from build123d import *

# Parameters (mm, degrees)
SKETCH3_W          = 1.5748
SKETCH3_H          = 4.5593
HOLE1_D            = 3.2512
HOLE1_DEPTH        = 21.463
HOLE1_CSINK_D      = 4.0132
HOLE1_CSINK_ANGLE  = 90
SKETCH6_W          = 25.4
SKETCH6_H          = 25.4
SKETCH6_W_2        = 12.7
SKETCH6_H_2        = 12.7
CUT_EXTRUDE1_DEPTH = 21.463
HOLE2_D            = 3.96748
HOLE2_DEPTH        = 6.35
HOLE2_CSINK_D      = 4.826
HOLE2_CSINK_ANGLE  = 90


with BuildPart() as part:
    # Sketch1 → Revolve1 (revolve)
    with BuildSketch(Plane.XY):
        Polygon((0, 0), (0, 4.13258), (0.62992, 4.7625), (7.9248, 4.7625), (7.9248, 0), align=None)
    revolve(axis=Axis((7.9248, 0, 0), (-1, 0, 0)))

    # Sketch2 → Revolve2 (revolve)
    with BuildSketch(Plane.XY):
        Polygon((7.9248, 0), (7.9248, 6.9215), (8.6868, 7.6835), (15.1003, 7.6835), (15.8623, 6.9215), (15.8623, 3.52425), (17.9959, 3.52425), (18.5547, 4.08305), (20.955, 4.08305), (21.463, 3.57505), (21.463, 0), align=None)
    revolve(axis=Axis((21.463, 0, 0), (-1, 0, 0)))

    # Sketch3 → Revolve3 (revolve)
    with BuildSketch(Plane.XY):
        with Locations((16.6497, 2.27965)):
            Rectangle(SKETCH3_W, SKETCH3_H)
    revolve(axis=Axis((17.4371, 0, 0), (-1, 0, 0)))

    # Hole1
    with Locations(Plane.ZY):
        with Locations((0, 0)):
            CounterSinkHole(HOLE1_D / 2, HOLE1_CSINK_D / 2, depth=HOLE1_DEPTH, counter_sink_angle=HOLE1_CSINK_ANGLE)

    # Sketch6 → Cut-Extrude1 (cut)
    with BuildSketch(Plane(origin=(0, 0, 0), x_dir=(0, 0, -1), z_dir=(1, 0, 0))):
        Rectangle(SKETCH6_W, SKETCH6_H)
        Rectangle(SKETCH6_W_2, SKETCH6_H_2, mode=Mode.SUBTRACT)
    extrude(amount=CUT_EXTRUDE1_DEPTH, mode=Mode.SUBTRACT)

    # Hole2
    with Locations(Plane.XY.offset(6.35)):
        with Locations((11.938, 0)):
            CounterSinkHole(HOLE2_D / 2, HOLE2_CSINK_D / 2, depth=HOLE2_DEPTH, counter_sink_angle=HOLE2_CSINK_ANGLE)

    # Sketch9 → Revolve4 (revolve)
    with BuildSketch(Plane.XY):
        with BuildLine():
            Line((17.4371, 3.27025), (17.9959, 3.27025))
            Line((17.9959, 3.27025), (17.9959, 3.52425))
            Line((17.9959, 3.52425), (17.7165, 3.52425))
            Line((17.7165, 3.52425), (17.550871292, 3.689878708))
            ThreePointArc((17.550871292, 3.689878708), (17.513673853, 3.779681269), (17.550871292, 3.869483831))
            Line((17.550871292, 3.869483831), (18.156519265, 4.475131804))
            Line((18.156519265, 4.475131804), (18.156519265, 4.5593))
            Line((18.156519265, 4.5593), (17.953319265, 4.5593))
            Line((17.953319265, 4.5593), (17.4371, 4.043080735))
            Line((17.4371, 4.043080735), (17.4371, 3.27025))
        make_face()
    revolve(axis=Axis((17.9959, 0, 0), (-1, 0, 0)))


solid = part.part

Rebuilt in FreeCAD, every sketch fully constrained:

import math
import FreeCAD as App
import Part
import Sketcher
from FreeCAD import Vector
Q = App.Units.Quantity


def add_polygon(sketch, points):
    """Adds a closed chain of lines whose ends are joined by coincident constraints."""
    first, n = sketch.GeometryCount, len(points)
    for a, b in zip(points, points[1:] + points[:1]):
        sketch.addGeometry(Part.LineSegment(App.Vector(*a, 0), App.Vector(*b, 0)), False)
    for i in range(n):
        sketch.addConstraint(Sketcher.Constraint("Coincident", first + i, 2, first + (i + 1) % n, 1))

doc = App.newDocument("Part")
body = doc.addObject("PartDesign::Body", "Body")

# Sketch on XY plane
sketch1 = doc.addObject("Sketcher::SketchObject", "Sketch")
body.addObject(sketch1)
sketch1.AttachmentSupport = (doc.XY_Plane, [""])
sketch1.MapMode = "FlatFace"
add_polygon(sketch1, [(0, 4.1), (0, 0), (7.9, 0), (7.9, 4.8), (0.6, 4.8)])  # lines 0-4
sketch1.addConstraint([
    Sketcher.Constraint("Vertical", 0),
    Sketcher.Constraint("Horizontal", 1),
    Sketcher.Constraint("Vertical", 2),
    Sketcher.Constraint("Horizontal", 3),
    Sketcher.Constraint("Coincident", 0, 2, -1, 1),
    Sketcher.Constraint("Angle", 4, Q("-135 deg")),
    Sketcher.Constraint("DistanceX", 1, 1, 1, 2, Q("0.312 in")),
    Sketcher.Constraint("DistanceY", 2, 1, 2, 2, Q("0.1875 in")),
    Sketcher.Constraint("DistanceX", 3, 2, 3, 1, Q("0.2872 in")),
])
revolution = doc.addObject("PartDesign::Revolution", "Revolution")
body.addObject(revolution)
revolution.Profile = sketch1
revolution.ReferenceAxis = (sketch1, ["H_Axis"])
revolution.Angle = 360

# Sketch on XY plane
sketch2 = doc.addObject("Sketcher::SketchObject", "Sketch001")
body.addObject(sketch2)
sketch2.AttachmentSupport = (doc.XY_Plane, [""])
sketch2.MapMode = "FlatFace"
add_polygon(sketch2, [(7.9, 6.9), (7.9, 0), (21.5, 0), (21.5, 3.6), (21, 4.1), (18.6, 4.1), (18, 3.5), (15.9, 3.5), (15.9, 6.9), (15.1, 7.7), (8.7, 7.7)])  # lines 0-10
sketch2.addConstraint([
    Sketcher.Constraint("Vertical", 0),
    Sketcher.Constraint("Horizontal", 1),
    Sketcher.Constraint("Vertical", 2),
    Sketcher.Constraint("Horizontal", 4),
    Sketcher.Constraint("Horizontal", 6),
    Sketcher.Constraint("Vertical", 7),
    Sketcher.Constraint("Horizontal", 9),
    Sketcher.Constraint("PointOnObject", 0, 2, -1),
    Sketcher.Constraint("Perpendicular", 3, 5),
    Sketcher.Constraint("Perpendicular", 5, 8),
    Sketcher.Constraint("Perpendicular", 8, 10),
    Sketcher.Constraint("Horizontal", 7, 2, 10, 2),
    Sketcher.Constraint("Equal", 8, 10),
    Sketcher.Constraint("DistanceX", 1, 1, 1, 2, Q("0.533 in")),
    Sketcher.Constraint("DistanceX", 6, 2, 6, 1, Q("0.084 in")),
    Sketcher.Constraint("DistanceX", 3, 2, 2, 2, Q("0.02 in")),
    Sketcher.Constraint("DistanceX", 8, 2, 7, 2, Q("0.03 in")),
    Sketcher.Constraint("DistanceX", 4, 2, 4, 1, Q("0.0945 in")),
    Sketcher.Constraint("DistanceX", 9, 2, 9, 1, Q("0.2525 in")),
    Sketcher.Constraint("DistanceY", 0, 2, 0, 1, Q("0.2725 in")),
    Sketcher.Constraint("DistanceX", -1, 1, 0, 2, Q("0.312 in")),
    Sketcher.Constraint("DistanceY", 2, 1, 2, 2, Q("3.57505 mm")),
])
revolution2 = doc.addObject("PartDesign::Revolution", "Revolution001")
body.addObject(revolution2)
revolution2.Profile = sketch2
revolution2.ReferenceAxis = (sketch2, ["H_Axis"])
revolution2.Angle = 360

# Sketch on XY plane
sketch3 = doc.addObject("Sketcher::SketchObject", "Sketch002")
body.addObject(sketch3)
sketch3.AttachmentSupport = (doc.XY_Plane, [""])
sketch3.MapMode = "FlatFace"
add_polygon(sketch3, [(15.9, 4.6), (15.9, 0), (17.4, 0), (17.4, 4.6)])  # lines 0-3
sketch3.addConstraint([
    Sketcher.Constraint("Vertical", 0),
    Sketcher.Constraint("Horizontal", 1),
    Sketcher.Constraint("Vertical", 2),
    Sketcher.Constraint("Horizontal", 3),
    Sketcher.Constraint("PointOnObject", 0, 2, -1),
    Sketcher.Constraint("DistanceX", 1, 1, 1, 2, Q("0.062 in")),
    Sketcher.Constraint("DistanceY", 0, 2, 0, 1, Q("0.1795 in")),
    Sketcher.Constraint("DistanceX", -1, 1, 0, 2, Q("0.6245 in")),
])
revolution3 = doc.addObject("PartDesign::Revolution", "Revolution002")
body.addObject(revolution3)
revolution3.Profile = sketch3
revolution3.ReferenceAxis = (sketch3, ["H_Axis"])
revolution3.Angle = 360

# Sketch on YZ plane
sketch4 = doc.addObject("Sketcher::SketchObject", "Sketch003")
body.addObject(sketch4)
sketch4.AttachmentSupport = (doc.YZ_Plane, [""])
sketch4.MapMode = "FlatFace"
sketch4.addGeometry(Part.Circle(Vector(0, 0, 0), Vector(0, 0, 1), 1.6), False)
sketch4.addConstraint([
    Sketcher.Constraint("Coincident", 0, 3, -1, 1),
    Sketcher.Constraint("Diameter", 0, Q("0.128 in")),
])
doc.recompute()
hole = doc.addObject("PartDesign::Hole", "Hole")
body.addObject(hole)
hole.Profile = sketch4
hole.ThreadType = "None"
hole.Diameter = Q("0.128 in")
hole.DepthType = "Dimension"
hole.Depth = Q("0.845 in")
hole.DrillPoint = "Flat"
hole.HoleCutType = "Countersink"
hole.HoleCutDiameter = Q("0.158 in")
hole.HoleCutCountersinkAngle = 90
hole.Reversed = True

# Sketch on YZ plane
sketch5 = doc.addObject("Sketcher::SketchObject", "Sketch004")
body.addObject(sketch5)
sketch5.AttachmentSupport = (doc.YZ_Plane, [""])
sketch5.MapMode = "FlatFace"
add_polygon(sketch5, [(13, 13), (-13, 13), (-13, -13), (13, -13)])  # lines 0-3
add_polygon(sketch5, [(-6, -6), (-6, 6), (6, 6), (6, -6)])  # lines 4-7
sketch5.addConstraint([
    Sketcher.Constraint("Horizontal", 0),
    Sketcher.Constraint("Vertical", 1),
    Sketcher.Constraint("Horizontal", 2),
    Sketcher.Constraint("Vertical", 3),
    Sketcher.Constraint("Vertical", 4),
    Sketcher.Constraint("Horizontal", 5),
    Sketcher.Constraint("Vertical", 6),
    Sketcher.Constraint("Horizontal", 7),
    Sketcher.Constraint("Symmetric", 0, 2, 2, 2, -1, 1),
    Sketcher.Constraint("Symmetric", 4, 2, 6, 2, -1, 1),
    Sketcher.Constraint("Equal", 2, 1),
    Sketcher.Constraint("Equal", 7, 4),
    Sketcher.Constraint("DistanceX", 0, 2, 0, 1, Q("1 in")),
    Sketcher.Constraint("DistanceX", 5, 1, 5, 2, Q("0.5 in")),
])
pocket1 = doc.addObject("PartDesign::Pocket", "Pocket")
body.addObject(pocket1)
pocket1.Profile = sketch5
pocket1.Length = Q("0.845 in")
pocket1.Reversed = True

# Sketch on XY plane
sketch6 = doc.addObject("Sketcher::SketchObject", "Sketch005")
body.addObject(sketch6)
sketch6.AttachmentSupport = (doc.XY_Plane, [""])
sketch6.MapMode = "FlatFace"
sketch6.AttachmentOffset = App.Placement(Vector(0, 0, 0.25 * 25.4), App.Rotation())
sketch6.addGeometry(Part.Circle(Vector(11.9, 0, 0), Vector(0, 0, 1), 2), False)
sketch6.addConstraint([
    Sketcher.Constraint("PointOnObject", 0, 3, -1),
    Sketcher.Constraint("Diameter", 0, Q("0.1562 in")),
    Sketcher.Constraint("DistanceX", -1, 1, 0, 3, Q("0.47 in")),
])
doc.recompute()
hole2 = doc.addObject("PartDesign::Hole", "Hole001")
body.addObject(hole2)
hole2.Profile = sketch6
hole2.ThreadType = "None"
hole2.Diameter = Q("0.1562 in")
hole2.DepthType = "Dimension"
hole2.Depth = Q("0.25 in")
hole2.DrillPoint = "Flat"
hole2.HoleCutType = "Countersink"
hole2.HoleCutDiameter = Q("0.19 in")
hole2.HoleCutCountersinkAngle = 90

# Sketch on XY plane
sketch7 = doc.addObject("Sketcher::SketchObject", "Sketch006")
body.addObject(sketch7)
sketch7.AttachmentSupport = (doc.XY_Plane, [""])
sketch7.MapMode = "FlatFace"
sketch7.addGeometry([
    Part.LineSegment(Vector(17.44, 3.27, 0), Vector(18, 3.27, 0)),  # 0
    Part.LineSegment(Vector(18, 3.27, 0), Vector(18, 3.52, 0)),  # 1
    Part.LineSegment(Vector(18, 3.52, 0), Vector(17.72, 3.52, 0)),  # 2
    Part.LineSegment(Vector(17.72, 3.52, 0), Vector(17.55, 3.69, 0)),  # 3
    Part.ArcOfCircle(Part.Circle(Vector(17.64, 3.78, 0), Vector(0, 0, 1), 0.13), math.radians(135), math.radians(225)),  # 4
    Part.LineSegment(Vector(17.55, 3.87, 0), Vector(18.16, 4.48, 0)),  # 5
    Part.LineSegment(Vector(18.16, 4.48, 0), Vector(18.16, 4.56, 0)),  # 6
    Part.LineSegment(Vector(18.16, 4.56, 0), Vector(17.95, 4.56, 0)),  # 7
    Part.LineSegment(Vector(17.95, 4.56, 0), Vector(17.44, 4.04, 0)),  # 8
    Part.LineSegment(Vector(17.44, 4.04, 0), Vector(17.44, 3.27, 0)),  # 9
], False)
sketch7.addConstraint([
    Sketcher.Constraint("Coincident", 0, 2, 1, 1),
    Sketcher.Constraint("Coincident", 1, 2, 2, 1),
    Sketcher.Constraint("Coincident", 2, 2, 3, 1),
    Sketcher.Constraint("Tangent", 3, 2, 4, 2),
    Sketcher.Constraint("Tangent", 4, 1, 5, 1),
    Sketcher.Constraint("Coincident", 5, 2, 6, 1),
    Sketcher.Constraint("Coincident", 6, 2, 7, 1),
    Sketcher.Constraint("Coincident", 7, 2, 8, 1),
    Sketcher.Constraint("Coincident", 8, 2, 9, 1),
    Sketcher.Constraint("Coincident", 9, 2, 0, 1),
    Sketcher.Constraint("Horizontal", 0),
    Sketcher.Constraint("Vertical", 1),
    Sketcher.Constraint("Horizontal", 2),
    Sketcher.Constraint("Vertical", 6),
    Sketcher.Constraint("Horizontal", 7),
    Sketcher.Constraint("Vertical", 9),
    Sketcher.Constraint("Perpendicular", 3, 5),
    Sketcher.Constraint("Parallel", 5, 8),
    Sketcher.Constraint("Vertical", 3, 2, 4, 1),
    Sketcher.Constraint("Radius", 4, Q("0.005 in")),
    Sketcher.Constraint("DistanceY", 1, 1, 1, 2, Q("0.01 in")),
    Sketcher.Constraint("DistanceX", 0, 1, 0, 2, Q("0.022 in")),
    Sketcher.Constraint("DistanceX", 2, 2, 2, 1, Q("0.011 in")),
    Sketcher.Constraint("DistanceX", 7, 2, 7, 1, Q("0.008 in")),
    Sketcher.Constraint("DistanceX", -1, 1, 0, 2, Q("0.7085 in")),
    Sketcher.Constraint("DistanceY", -1, 1, 6, 2, Q("0.1795 in")),
    Sketcher.Constraint("DistanceY", 6, 1, 6, 2, Q("0.084168 mm")),
    Sketcher.Constraint("DistanceY", 9, 2, 9, 1, Q("0.772831 mm")),
    Sketcher.Constraint("DistanceY", -1, 1, 4, 3, Q("3.779681 mm")),
])
revolution4 = doc.addObject("PartDesign::Revolution", "Revolution003")
body.addObject(revolution4)
revolution4.Profile = sketch7
revolution4.ReferenceAxis = (sketch7, ["H_Axis"])
revolution4.Angle = 360

doc.recompute()
